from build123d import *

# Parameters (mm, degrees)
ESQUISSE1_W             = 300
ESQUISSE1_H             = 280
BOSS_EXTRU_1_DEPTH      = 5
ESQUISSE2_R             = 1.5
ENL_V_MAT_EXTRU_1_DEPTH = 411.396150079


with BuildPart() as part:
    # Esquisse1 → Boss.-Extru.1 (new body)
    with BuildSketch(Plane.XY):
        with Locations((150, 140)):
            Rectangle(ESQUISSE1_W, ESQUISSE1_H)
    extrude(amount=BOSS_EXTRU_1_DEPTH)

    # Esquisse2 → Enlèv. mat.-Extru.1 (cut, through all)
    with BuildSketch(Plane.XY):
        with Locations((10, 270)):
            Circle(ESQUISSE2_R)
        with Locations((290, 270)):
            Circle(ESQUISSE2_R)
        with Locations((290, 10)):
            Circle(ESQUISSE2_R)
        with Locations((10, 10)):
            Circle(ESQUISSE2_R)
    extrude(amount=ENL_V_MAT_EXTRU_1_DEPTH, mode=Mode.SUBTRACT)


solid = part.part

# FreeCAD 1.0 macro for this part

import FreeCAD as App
import Part
import Sketcher


def add_polygon(sketch, points):
    """Adds a closed chain of lines whose ends are joined by coincident constraints."""
    first, n = sketch.GeometryCount, len(points)
    for a, b in zip(points, points[1:] + points[:1]):
        sketch.addGeometry(Part.LineSegment(App.Vector(*a, 0), App.Vector(*b, 0)), False)
    for i in range(n):
        sketch.addConstraint(Sketcher.Constraint("Coincident", first + i, 2, first + (i + 1) % n, 1))

doc = App.newDocument("Part")
body = doc.addObject("PartDesign::Body", "Body")

sketch1 = doc.addObject("Sketcher::SketchObject", "Sketch")
body.addObject(sketch1)
sketch1.AttachmentSupport = (doc.XY_Plane, [""])
sketch1.MapMode = "FlatFace"
add_polygon(sketch1, [(0, 280), (0, 0), (300, 0), (300, 280)])
sketch1.addConstraint([
    Sketcher.Constraint("Vertical", 0),
    Sketcher.Constraint("Horizontal", 1),
    Sketcher.Constraint("Vertical", 2),
    Sketcher.Constraint("Horizontal", 3),
    Sketcher.Constraint("Coincident", 0, 2, -1, 1),
    Sketcher.Constraint("DistanceX", 1, 1, 1, 2, 300.0),
    Sketcher.Constraint("DistanceY", 0, 2, 0, 1, 280.0),
])
pad1 = doc.addObject("PartDesign::Pad", "Pad")
body.addObject(pad1)
pad1.Profile = sketch1
pad1.Length = 5

sketch2 = doc.addObject("Sketcher::SketchObject", "Sketch001")
body.addObject(sketch2)
sketch2.AttachmentSupport = (doc.XY_Plane, [""])
sketch2.MapMode = "FlatFace"
sketch2.addGeometry([
    Part.Circle(App.Vector(10, 270, 0), App.Vector(0, 0, 1), 1.5),
    Part.Circle(App.Vector(290, 270, 0), App.Vector(0, 0, 1), 1.5),
    Part.Circle(App.Vector(290, 10, 0), App.Vector(0, 0, 1), 1.5),
    Part.Circle(App.Vector(10, 10, 0), App.Vector(0, 0, 1), 1.5),
], False)
sketch2.addConstraint([
    Sketcher.Constraint("Equal", 0, 1),
    Sketcher.Constraint("Equal", 1, 2),
    Sketcher.Constraint("Equal", 2, 3),
    Sketcher.Constraint("Horizontal", 0, 3, 1, 3),
    Sketcher.Constraint("Horizontal", 2, 3, 3, 3),
    Sketcher.Constraint("Vertical", 1, 3, 2, 3),
    Sketcher.Constraint("Vertical", 0, 3, 3, 3),
    Sketcher.Constraint("Diameter", 0, 3.0),
    Sketcher.Constraint("DistanceX", -1, 1, 0, 3, 10.0),
    Sketcher.Constraint("DistanceY", -1, 1, 0, 3, 270.0),
    Sketcher.Constraint("DistanceX", -1, 1, 1, 3, 290.0),
    Sketcher.Constraint("DistanceY", -1, 1, 2, 3, 10.0),
])
pocket1 = doc.addObject("PartDesign::Pocket", "Pocket")
body.addObject(pocket1)
pocket1.Profile = sketch2
pocket1.Type = "ThroughAll"
pocket1.Reversed = True

doc.recompute()
